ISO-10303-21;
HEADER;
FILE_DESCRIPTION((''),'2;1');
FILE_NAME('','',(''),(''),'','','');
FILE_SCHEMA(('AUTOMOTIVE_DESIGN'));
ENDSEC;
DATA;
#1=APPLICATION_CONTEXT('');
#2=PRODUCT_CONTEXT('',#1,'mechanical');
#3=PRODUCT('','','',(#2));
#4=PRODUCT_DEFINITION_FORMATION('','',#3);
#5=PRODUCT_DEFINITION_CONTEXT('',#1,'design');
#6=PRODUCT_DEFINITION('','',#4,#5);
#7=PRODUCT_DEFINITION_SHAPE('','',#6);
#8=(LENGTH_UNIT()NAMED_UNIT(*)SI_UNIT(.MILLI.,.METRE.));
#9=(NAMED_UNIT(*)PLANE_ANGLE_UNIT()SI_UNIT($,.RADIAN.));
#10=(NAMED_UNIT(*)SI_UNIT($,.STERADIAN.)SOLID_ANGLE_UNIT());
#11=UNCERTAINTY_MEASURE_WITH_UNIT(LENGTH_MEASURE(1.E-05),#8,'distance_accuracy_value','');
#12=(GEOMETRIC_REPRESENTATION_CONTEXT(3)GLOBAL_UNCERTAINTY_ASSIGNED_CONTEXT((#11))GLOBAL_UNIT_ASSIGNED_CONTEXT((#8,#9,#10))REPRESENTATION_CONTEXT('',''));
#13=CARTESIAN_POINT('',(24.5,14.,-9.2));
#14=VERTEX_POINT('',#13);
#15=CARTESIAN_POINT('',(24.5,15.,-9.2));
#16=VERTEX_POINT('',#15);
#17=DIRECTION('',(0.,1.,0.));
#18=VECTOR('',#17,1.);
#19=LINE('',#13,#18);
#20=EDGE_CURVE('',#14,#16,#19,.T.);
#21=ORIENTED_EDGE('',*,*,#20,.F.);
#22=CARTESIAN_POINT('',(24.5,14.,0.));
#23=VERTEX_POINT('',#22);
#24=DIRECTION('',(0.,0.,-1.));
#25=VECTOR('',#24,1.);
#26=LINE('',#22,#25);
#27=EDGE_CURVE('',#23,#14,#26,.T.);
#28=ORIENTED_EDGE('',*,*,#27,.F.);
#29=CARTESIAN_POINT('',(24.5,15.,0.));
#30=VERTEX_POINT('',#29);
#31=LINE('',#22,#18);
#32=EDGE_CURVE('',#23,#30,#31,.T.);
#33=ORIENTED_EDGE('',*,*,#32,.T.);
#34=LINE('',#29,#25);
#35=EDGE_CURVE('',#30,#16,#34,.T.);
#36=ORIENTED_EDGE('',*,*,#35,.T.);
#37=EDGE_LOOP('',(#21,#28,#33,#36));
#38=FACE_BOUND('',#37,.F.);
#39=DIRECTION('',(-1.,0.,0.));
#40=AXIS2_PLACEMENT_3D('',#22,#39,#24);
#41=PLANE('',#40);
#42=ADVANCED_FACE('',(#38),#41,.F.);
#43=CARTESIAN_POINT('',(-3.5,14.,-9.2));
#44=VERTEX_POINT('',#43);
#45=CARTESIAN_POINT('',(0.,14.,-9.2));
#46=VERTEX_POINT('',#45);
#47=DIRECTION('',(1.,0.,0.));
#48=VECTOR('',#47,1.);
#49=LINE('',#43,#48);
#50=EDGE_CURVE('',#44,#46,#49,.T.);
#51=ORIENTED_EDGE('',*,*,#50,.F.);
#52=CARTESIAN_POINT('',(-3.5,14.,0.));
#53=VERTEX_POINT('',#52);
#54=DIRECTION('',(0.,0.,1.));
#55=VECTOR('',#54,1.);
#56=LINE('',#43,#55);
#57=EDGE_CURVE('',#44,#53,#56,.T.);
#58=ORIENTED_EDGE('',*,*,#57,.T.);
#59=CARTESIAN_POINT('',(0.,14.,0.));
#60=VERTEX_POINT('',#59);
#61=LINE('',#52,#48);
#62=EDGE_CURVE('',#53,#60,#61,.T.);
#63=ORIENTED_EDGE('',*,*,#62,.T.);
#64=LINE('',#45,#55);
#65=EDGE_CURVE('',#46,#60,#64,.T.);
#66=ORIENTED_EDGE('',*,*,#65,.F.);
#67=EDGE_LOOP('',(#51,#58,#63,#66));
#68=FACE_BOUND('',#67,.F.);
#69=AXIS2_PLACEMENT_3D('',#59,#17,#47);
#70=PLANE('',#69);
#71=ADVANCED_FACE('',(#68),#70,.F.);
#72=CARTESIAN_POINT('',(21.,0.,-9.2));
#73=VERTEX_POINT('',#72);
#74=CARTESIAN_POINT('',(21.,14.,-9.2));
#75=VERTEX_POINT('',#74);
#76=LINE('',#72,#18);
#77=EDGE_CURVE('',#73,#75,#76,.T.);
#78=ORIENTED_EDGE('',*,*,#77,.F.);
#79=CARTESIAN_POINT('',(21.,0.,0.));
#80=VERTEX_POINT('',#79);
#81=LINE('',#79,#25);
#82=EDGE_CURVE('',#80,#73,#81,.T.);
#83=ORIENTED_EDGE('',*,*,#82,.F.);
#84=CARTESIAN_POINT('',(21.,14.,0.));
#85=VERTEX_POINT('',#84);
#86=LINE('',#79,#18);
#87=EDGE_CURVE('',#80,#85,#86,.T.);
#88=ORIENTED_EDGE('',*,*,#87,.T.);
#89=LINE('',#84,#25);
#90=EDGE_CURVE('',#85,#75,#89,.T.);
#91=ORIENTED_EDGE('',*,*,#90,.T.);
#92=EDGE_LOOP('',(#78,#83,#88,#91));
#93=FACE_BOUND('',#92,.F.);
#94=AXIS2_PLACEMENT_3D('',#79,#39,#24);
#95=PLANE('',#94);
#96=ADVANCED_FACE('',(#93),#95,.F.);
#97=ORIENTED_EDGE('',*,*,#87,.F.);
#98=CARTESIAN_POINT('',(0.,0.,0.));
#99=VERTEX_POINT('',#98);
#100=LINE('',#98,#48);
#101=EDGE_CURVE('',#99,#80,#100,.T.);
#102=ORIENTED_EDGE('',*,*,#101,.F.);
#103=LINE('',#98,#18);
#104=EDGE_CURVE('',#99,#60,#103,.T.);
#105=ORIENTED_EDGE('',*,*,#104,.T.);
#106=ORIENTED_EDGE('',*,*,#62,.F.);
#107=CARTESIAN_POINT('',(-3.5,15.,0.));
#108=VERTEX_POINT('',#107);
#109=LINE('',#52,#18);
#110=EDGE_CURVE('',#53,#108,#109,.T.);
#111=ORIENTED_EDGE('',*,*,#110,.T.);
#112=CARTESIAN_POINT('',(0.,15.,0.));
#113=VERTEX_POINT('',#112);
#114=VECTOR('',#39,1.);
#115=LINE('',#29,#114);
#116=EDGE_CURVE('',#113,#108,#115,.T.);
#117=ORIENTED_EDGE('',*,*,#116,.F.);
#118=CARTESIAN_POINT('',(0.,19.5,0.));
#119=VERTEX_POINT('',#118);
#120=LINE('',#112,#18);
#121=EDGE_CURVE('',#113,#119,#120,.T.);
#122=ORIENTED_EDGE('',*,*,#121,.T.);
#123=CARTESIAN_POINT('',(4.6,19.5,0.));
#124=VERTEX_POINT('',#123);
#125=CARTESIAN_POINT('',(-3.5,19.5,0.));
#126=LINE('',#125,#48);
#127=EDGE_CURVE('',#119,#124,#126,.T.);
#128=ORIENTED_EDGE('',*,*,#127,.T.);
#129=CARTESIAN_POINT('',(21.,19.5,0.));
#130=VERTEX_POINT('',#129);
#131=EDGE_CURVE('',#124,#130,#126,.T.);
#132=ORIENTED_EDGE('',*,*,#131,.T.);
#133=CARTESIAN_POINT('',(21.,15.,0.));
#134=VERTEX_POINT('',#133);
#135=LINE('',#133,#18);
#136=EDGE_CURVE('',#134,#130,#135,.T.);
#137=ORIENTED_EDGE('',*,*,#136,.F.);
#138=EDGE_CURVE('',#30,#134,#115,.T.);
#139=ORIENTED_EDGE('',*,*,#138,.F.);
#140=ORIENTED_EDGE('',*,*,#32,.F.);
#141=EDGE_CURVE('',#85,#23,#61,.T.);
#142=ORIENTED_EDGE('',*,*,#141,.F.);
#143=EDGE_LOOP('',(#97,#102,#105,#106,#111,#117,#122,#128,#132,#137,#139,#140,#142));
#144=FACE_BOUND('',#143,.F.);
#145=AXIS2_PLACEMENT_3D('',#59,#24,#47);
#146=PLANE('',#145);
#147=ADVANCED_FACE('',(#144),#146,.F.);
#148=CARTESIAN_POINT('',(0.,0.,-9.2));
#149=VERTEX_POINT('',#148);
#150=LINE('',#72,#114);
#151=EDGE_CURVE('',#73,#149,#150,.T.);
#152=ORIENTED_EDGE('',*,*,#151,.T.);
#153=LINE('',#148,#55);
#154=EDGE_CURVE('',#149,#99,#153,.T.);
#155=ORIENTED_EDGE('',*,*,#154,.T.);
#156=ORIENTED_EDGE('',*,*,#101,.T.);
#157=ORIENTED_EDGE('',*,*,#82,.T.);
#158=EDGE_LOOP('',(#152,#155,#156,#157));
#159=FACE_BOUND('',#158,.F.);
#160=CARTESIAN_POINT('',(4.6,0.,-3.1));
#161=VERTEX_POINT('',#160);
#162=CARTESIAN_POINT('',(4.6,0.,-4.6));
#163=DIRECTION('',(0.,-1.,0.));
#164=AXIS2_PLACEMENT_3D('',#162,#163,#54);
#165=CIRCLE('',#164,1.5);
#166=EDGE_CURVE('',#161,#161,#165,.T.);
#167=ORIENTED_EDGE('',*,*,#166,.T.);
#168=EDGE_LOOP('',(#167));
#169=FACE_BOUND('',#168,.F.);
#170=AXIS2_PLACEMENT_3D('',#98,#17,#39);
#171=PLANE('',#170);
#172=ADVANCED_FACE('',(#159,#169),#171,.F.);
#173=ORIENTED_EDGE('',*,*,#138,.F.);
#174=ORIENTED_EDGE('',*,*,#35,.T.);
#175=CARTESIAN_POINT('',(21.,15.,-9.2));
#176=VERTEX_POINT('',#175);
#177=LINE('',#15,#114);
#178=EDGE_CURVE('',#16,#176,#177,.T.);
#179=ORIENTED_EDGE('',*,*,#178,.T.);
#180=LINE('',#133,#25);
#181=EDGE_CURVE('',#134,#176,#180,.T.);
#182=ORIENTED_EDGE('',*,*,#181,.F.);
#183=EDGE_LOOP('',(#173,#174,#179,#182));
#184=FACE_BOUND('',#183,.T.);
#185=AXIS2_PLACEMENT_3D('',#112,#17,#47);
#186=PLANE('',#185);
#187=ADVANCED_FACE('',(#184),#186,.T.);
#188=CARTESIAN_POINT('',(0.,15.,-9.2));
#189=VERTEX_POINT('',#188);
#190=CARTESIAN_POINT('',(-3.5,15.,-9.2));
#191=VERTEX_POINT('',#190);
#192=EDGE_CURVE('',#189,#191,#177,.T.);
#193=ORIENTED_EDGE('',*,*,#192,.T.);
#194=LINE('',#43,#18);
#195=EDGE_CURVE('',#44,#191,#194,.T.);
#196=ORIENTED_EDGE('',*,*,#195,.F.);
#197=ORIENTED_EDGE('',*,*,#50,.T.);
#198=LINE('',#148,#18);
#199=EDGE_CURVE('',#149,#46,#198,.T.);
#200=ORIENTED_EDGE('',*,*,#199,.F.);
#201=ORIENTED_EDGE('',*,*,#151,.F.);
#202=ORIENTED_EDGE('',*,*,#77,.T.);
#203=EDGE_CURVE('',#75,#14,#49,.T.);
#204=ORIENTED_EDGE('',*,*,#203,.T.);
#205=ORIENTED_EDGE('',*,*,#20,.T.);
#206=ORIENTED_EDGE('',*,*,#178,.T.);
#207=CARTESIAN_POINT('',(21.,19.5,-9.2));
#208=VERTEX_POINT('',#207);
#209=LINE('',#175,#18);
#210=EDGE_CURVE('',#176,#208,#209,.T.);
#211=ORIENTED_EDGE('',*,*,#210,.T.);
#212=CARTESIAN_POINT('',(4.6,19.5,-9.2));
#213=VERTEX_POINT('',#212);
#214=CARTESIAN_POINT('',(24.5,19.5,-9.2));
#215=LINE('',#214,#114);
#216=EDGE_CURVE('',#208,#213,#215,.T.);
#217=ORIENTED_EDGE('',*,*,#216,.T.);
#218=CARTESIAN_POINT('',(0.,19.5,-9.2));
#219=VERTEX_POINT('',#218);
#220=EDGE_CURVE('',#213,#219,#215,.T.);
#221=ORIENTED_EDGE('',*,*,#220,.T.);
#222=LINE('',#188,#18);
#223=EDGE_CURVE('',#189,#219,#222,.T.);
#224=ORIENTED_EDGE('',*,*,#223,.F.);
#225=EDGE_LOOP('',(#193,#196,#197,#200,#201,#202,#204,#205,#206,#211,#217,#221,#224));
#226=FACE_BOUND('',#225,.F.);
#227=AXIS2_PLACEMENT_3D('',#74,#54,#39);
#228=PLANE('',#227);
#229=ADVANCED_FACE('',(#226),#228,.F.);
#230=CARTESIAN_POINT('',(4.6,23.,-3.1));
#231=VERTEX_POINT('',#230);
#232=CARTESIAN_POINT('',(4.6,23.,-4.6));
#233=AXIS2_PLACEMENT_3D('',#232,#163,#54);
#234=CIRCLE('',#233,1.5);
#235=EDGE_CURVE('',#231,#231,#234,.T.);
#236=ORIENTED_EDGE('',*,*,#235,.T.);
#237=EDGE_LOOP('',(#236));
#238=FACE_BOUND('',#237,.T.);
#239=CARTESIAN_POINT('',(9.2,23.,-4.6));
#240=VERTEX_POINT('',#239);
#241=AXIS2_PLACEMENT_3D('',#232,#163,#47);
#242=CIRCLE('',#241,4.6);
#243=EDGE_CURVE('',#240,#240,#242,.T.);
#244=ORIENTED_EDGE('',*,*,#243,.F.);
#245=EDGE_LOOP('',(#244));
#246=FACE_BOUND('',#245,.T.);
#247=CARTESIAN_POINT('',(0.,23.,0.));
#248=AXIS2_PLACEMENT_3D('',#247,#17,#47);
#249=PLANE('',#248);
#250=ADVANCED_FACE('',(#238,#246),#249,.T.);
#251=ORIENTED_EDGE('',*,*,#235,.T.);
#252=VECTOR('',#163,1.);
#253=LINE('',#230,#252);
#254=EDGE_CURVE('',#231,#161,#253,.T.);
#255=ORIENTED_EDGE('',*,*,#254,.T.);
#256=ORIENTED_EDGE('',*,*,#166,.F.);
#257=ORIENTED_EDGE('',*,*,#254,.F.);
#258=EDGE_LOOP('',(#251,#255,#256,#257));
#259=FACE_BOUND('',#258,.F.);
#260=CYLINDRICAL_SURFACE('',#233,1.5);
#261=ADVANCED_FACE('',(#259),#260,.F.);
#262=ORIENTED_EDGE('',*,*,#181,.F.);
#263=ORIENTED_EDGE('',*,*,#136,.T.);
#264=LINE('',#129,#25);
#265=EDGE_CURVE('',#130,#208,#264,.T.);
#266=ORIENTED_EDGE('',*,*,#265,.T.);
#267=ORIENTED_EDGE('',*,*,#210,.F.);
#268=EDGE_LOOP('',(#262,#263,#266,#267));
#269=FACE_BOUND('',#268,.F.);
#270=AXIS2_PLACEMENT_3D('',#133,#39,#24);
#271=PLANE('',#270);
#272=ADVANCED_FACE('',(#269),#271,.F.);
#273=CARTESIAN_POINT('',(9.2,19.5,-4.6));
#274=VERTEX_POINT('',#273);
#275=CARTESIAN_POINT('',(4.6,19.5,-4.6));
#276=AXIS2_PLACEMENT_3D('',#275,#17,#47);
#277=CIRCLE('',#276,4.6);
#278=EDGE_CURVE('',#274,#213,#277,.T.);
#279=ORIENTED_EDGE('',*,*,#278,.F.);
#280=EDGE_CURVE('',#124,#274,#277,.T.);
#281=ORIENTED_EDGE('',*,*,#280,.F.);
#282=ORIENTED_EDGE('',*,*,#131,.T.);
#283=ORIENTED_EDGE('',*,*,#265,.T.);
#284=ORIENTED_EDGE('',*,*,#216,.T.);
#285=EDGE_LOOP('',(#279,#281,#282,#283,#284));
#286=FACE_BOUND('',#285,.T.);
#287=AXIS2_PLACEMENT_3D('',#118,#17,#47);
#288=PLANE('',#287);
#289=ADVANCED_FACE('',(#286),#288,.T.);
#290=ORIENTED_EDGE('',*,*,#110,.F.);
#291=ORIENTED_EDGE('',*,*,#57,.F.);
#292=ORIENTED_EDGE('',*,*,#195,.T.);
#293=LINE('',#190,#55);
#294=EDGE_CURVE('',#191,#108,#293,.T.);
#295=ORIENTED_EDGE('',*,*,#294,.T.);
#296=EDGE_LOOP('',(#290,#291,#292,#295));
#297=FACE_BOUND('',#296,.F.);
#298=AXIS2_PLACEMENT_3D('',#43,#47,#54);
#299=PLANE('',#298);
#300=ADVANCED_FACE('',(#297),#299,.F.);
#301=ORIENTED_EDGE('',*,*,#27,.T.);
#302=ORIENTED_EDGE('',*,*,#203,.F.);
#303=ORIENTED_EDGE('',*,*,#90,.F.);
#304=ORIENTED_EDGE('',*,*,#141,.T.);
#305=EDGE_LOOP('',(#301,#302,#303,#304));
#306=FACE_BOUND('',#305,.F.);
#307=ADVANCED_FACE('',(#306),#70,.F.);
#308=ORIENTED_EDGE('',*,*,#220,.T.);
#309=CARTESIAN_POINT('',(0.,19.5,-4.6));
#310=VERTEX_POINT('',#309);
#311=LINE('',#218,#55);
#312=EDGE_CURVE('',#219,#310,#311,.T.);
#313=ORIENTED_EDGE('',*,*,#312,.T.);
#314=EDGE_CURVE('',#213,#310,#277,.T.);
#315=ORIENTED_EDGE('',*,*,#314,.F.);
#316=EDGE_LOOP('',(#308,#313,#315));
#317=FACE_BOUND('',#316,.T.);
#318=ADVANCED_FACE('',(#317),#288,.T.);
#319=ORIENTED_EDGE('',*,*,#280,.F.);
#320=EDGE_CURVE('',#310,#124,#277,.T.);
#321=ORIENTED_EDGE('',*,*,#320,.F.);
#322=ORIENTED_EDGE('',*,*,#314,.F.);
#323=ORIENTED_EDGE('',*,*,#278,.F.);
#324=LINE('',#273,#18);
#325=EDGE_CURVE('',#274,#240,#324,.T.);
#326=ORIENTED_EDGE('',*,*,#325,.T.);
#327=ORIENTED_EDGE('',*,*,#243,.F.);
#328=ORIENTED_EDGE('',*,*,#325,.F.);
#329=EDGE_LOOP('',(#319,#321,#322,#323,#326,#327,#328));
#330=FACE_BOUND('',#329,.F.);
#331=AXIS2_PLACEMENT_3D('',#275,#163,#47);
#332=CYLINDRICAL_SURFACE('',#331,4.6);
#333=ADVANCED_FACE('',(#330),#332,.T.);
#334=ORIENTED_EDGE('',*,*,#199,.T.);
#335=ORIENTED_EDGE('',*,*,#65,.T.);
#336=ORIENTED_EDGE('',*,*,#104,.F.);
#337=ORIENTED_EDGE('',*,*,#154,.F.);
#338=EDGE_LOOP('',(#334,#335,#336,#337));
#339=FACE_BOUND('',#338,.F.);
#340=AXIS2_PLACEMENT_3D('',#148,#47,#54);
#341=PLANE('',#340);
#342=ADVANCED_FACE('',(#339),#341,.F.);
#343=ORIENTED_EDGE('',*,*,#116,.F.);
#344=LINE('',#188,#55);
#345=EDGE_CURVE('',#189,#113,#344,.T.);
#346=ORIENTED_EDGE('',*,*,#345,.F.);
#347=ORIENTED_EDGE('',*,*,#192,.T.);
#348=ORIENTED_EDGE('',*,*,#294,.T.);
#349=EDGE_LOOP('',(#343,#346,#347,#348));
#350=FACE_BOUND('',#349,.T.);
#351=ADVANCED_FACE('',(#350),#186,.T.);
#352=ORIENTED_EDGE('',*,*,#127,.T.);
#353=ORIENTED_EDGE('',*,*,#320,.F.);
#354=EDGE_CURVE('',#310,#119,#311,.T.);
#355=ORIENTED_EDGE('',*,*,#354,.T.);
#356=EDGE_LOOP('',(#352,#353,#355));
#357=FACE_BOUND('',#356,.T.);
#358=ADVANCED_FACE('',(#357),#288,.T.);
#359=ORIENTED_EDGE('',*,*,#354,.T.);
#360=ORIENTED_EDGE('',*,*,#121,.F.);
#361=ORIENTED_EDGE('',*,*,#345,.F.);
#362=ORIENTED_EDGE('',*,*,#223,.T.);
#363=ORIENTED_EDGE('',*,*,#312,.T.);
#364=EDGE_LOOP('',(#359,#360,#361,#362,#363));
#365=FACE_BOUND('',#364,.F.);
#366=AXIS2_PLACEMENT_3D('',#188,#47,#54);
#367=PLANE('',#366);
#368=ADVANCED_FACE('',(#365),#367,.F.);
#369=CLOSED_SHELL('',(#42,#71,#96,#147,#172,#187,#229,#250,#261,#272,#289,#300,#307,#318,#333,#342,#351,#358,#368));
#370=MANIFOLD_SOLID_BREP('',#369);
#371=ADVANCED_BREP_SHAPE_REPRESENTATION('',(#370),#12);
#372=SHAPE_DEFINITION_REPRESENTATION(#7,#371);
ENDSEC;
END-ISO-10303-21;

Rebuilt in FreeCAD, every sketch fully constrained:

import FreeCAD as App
import Part
import Sketcher
from FreeCAD import Vector
Q = App.Units.Quantity

doc = App.newDocument("Part")
body = doc.addObject("PartDesign::Body", "Body")

sketch1 = body.newObject("Sketcher::SketchObject", "Sketch")
sketch1.AttachmentSupport = (doc.getObject("XZ_Plane"), [""])
sketch1.MapMode = "FlatFace"
sketch1.addGeometry([
    Part.LineSegment(Vector(0, -9, 0), Vector(0, 0, 0)),
    Part.LineSegment(Vector(0, 0, 0), Vector(21, 0, 0)),
    Part.LineSegment(Vector(21, 0, 0), Vector(21, -9, 0)),
    Part.LineSegment(Vector(21, -9, 0), Vector(0, -9, 0)),
], False)
sketch1.addConstraint([
    Sketcher.Constraint("Coincident", 0, 2, 1, 1),
    Sketcher.Constraint("Coincident", 1, 2, 2, 1),
    Sketcher.Constraint("Coincident", 2, 2, 3, 1),
    Sketcher.Constraint("Coincident", 3, 2, 0, 1),
    Sketcher.Constraint("Vertical", 0),
    Sketcher.Constraint("Horizontal", 1),
    Sketcher.Constraint("Vertical", 2),
    Sketcher.Constraint("Horizontal", 3),
    Sketcher.Constraint("Coincident", 0, 2, -1, 1),
    Sketcher.Constraint("DistanceX", 1, 1, 1, 2, Q("21 mm")),
    Sketcher.Constraint("DistanceY", 0, 1, 0, 2, Q("9.2 mm")),
])
pad1 = body.newObject("PartDesign::Pad", "Pad")
pad1.Profile = sketch1
pad1.Length = 14
pad1.Reversed = True

sketch2 = body.newObject("Sketcher::SketchObject", "Sketch001")
sketch2.AttachmentSupport = (doc.getObject("XZ_Plane"), [""])
sketch2.MapMode = "FlatFace"
sketch2.AttachmentOffset = App.Placement(Vector(0, 0, -14), App.Rotation())
sketch2.addGeometry([
    Part.LineSegment(Vector(24, 0, 0), Vector(24, -9, 0)),
    Part.LineSegment(Vector(24, -9, 0), Vector(-4, -9, 0)),
    Part.LineSegment(Vector(-4, -9, 0), Vector(-4, 0, 0)),
    Part.LineSegment(Vector(-4, 0, 0), Vector(24, 0, 0)),
], False)
sketch2.addConstraint([
    Sketcher.Constraint("Coincident", 0, 2, 1, 1),
    Sketcher.Constraint("Coincident", 1, 2, 2, 1),
    Sketcher.Constraint("Coincident", 2, 2, 3, 1),
    Sketcher.Constraint("Coincident", 3, 2, 0, 1),
    Sketcher.Constraint("Vertical", 0),
    Sketcher.Constraint("Horizontal", 1),
    Sketcher.Constraint("Vertical", 2),
    Sketcher.Constraint("Horizontal", 3),
    Sketcher.Constraint("PointOnObject", 2, 2, -1),
    Sketcher.Constraint("DistanceX", 1, 2, -1, 1, Q("3.5 mm")),
    Sketcher.Constraint("DistanceX", 1, 2, 1, 1, Q("28 mm")),
    Sketcher.Constraint("DistanceY", 0, 2, 0, 1, Q("9.2 mm")),
])
pad2 = body.newObject("PartDesign::Pad", "Pad001")
pad2.Profile = sketch2
pad2.Length = 1
pad2.Reversed = True

sketch3 = body.newObject("Sketcher::SketchObject", "Sketch002")
sketch3.AttachmentSupport = (doc.getObject("XZ_Plane"), [""])
sketch3.MapMode = "FlatFace"
sketch3.AttachmentOffset = App.Placement(Vector(0, 0, -15), App.Rotation())
sketch3.addGeometry([
    Part.LineSegment(Vector(0, -9, 0), Vector(0, 0, 0)),
    Part.LineSegment(Vector(0, 0, 0), Vector(21, 0, 0)),
    Part.LineSegment(Vector(21, 0, 0), Vector(21, -9, 0)),
    Part.LineSegment(Vector(21, -9, 0), Vector(0, -9, 0)),
], False)
sketch3.addConstraint([
    Sketcher.Constraint("Coincident", 0, 2, 1, 1),
    Sketcher.Constraint("Coincident", 1, 2, 2, 1),
    Sketcher.Constraint("Coincident", 2, 2, 3, 1),
    Sketcher.Constraint("Coincident", 3, 2, 0, 1),
    Sketcher.Constraint("Vertical", 0),
    Sketcher.Constraint("Horizontal", 1),
    Sketcher.Constraint("Vertical", 2),
    Sketcher.Constraint("Horizontal", 3),
    Sketcher.Constraint("Coincident", 0, 2, -1, 1),
    Sketcher.Constraint("DistanceX", 1, 1, 1, 2, Q("21 mm")),
    Sketcher.Constraint("DistanceY", 0, 1, 0, 2, Q("9.2 mm")),
])
pad3 = body.newObject("PartDesign::Pad", "Pad002")
pad3.Profile = sketch3
pad3.Length = 4.5
pad3.Reversed = True

sketch4 = body.newObject("Sketcher::SketchObject", "Sketch003")
sketch4.AttachmentSupport = (doc.getObject("XZ_Plane"), [""])
sketch4.MapMode = "FlatFace"
sketch4.AttachmentOffset = App.Placement(Vector(0, 0, -19.5), App.Rotation())
sketch4.addGeometry(Part.Circle(Vector(4.6, -4.6, 0), Vector(0, 0, 1), 4.6), False)
sketch4.addConstraint([
    Sketcher.Constraint("Diameter", 0, Q("9.2 mm")),
    Sketcher.Constraint("DistanceX", -1, 1, 0, 3, Q("4.6 mm")),
    Sketcher.Constraint("DistanceY", 0, 3, -1, 1, Q("4.6 mm")),
])
pad4 = body.newObject("PartDesign::Pad", "Pad003")
pad4.Profile = sketch4
pad4.Length = 3.5
pad4.Reversed = True

sketch5 = body.newObject("Sketcher::SketchObject", "Sketch004")
sketch5.AttachmentSupport = (doc.getObject("XZ_Plane"), [""])
sketch5.MapMode = "FlatFace"
sketch5.AttachmentOffset = App.Placement(Vector(0, 0, -23), App.Rotation())
sketch5.addGeometry(Part.Circle(Vector(4.6, -4.6, 0), Vector(0, 0, 1), 1.5), False)
sketch5.addConstraint([
    Sketcher.Constraint("Diameter", 0, Q("3 mm")),
    Sketcher.Constraint("DistanceX", -1, 1, 0, 3, Q("4.6 mm")),
    Sketcher.Constraint("DistanceY", 0, 3, -1, 1, Q("4.6 mm")),
])
doc.recompute()
hole = body.newObject("PartDesign::Hole", "Hole")
hole.Profile = sketch5
hole.ThreadType = "None"
hole.Diameter = 3
hole.DepthType = "ThroughAll"
hole.Reversed = True

doc.recompute()
